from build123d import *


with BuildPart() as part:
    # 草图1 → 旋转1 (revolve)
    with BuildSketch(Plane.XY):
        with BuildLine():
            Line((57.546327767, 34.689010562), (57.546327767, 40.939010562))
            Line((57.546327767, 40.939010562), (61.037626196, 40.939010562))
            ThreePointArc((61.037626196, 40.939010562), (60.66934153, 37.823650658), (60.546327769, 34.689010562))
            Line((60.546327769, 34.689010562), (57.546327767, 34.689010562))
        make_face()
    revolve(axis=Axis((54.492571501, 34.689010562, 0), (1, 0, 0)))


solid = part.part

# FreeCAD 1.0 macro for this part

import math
import FreeCAD as App
import Part
import Sketcher
from FreeCAD import Vector
Q = App.Units.Quantity

doc = App.newDocument("Part")
params = doc.addObject("Spreadsheet::Sheet", "Params")
for row, (alias, value) in enumerate([
    ("sketch1_radius", "40 mm"),
    ("sketch1_width", "3 mm"),
    ("sketch1_height", "6.25 mm"),
    ("revolution_angle", "360 deg"),
], start=1):
    params.set(f"A{row}", alias)
    params.set(f"B{row}", "=" + value)
    params.setAlias(f"B{row}", alias)

body = doc.addObject("PartDesign::Body", "Body")

# Sketch on XY plane
sketch1 = body.newObject("Sketcher::SketchObject", "Sketch")
sketch1.AttachmentSupport = (doc.getObject("XY_Plane"), [""])
sketch1.MapMode = "FlatFace"
sketch1.addGeometry([
    Part.LineSegment(Vector(57.5, 40.9, 0), Vector(57.5, 34.7, 0)),
    Part.LineSegment(Vector(57.5, 34.7, 0), Vector(60.5, 34.7, 0)),
    Part.ArcOfCircle(Part.Circle(Vector(100.5, 34.7, 0), Vector(0, 0, 1), 40), math.radians(171.01), math.radians(180)),
    Part.LineSegment(Vector(61, 40.9, 0), Vector(57.5, 40.9, 0)),
], False)
sketch1.addGeometry(Part.LineSegment(Vector(57.5, 34.7, 0), Vector(100.5, 34.7, 0)), True)  # axis
sketch1.addConstraint([
    Sketcher.Constraint("Coincident", 0, 2, 1, 1),
    Sketcher.Constraint("Coincident", 1, 2, 2, 2),
    Sketcher.Constraint("Coincident", 2, 1, 3, 1),
    Sketcher.Constraint("Coincident", 3, 2, 0, 1),
    Sketcher.Constraint("Vertical", 0),
    Sketcher.Constraint("Horizontal", 1),
    Sketcher.Constraint("Horizontal", 3),
    Sketcher.Constraint("Horizontal", 4),
    Sketcher.Constraint("Coincident", 4, 1, 0, 2),
    Sketcher.Constraint("Coincident", 4, 2, 2, 3),
    Sketcher.Constraint("Radius", 2, Q("40 mm")),
    Sketcher.Constraint("DistanceX", 1, 1, 1, 2, Q("3 mm")),
    Sketcher.Constraint("DistanceY", 0, 2, 0, 1, Q("6.25 mm")),
    Sketcher.Constraint("DistanceY", -1, 1, 2, 3, Q("34.689011 mm")),
    Sketcher.Constraint("DistanceX", -1, 1, 2, 3, Q("100.546328 mm")),
])
sketch1.setExpression("Constraints[10]", "Params.sketch1_radius")
sketch1.setExpression("Constraints[11]", "Params.sketch1_width")
sketch1.setExpression("Constraints[12]", "Params.sketch1_height")
revolution = body.newObject("PartDesign::Revolution", "Revolution")
revolution.Profile = sketch1
revolution.ReferenceAxis = (sketch1, ["Axis0"])
revolution.setExpression("Angle", "Params.revolution_angle")

doc.recompute()
